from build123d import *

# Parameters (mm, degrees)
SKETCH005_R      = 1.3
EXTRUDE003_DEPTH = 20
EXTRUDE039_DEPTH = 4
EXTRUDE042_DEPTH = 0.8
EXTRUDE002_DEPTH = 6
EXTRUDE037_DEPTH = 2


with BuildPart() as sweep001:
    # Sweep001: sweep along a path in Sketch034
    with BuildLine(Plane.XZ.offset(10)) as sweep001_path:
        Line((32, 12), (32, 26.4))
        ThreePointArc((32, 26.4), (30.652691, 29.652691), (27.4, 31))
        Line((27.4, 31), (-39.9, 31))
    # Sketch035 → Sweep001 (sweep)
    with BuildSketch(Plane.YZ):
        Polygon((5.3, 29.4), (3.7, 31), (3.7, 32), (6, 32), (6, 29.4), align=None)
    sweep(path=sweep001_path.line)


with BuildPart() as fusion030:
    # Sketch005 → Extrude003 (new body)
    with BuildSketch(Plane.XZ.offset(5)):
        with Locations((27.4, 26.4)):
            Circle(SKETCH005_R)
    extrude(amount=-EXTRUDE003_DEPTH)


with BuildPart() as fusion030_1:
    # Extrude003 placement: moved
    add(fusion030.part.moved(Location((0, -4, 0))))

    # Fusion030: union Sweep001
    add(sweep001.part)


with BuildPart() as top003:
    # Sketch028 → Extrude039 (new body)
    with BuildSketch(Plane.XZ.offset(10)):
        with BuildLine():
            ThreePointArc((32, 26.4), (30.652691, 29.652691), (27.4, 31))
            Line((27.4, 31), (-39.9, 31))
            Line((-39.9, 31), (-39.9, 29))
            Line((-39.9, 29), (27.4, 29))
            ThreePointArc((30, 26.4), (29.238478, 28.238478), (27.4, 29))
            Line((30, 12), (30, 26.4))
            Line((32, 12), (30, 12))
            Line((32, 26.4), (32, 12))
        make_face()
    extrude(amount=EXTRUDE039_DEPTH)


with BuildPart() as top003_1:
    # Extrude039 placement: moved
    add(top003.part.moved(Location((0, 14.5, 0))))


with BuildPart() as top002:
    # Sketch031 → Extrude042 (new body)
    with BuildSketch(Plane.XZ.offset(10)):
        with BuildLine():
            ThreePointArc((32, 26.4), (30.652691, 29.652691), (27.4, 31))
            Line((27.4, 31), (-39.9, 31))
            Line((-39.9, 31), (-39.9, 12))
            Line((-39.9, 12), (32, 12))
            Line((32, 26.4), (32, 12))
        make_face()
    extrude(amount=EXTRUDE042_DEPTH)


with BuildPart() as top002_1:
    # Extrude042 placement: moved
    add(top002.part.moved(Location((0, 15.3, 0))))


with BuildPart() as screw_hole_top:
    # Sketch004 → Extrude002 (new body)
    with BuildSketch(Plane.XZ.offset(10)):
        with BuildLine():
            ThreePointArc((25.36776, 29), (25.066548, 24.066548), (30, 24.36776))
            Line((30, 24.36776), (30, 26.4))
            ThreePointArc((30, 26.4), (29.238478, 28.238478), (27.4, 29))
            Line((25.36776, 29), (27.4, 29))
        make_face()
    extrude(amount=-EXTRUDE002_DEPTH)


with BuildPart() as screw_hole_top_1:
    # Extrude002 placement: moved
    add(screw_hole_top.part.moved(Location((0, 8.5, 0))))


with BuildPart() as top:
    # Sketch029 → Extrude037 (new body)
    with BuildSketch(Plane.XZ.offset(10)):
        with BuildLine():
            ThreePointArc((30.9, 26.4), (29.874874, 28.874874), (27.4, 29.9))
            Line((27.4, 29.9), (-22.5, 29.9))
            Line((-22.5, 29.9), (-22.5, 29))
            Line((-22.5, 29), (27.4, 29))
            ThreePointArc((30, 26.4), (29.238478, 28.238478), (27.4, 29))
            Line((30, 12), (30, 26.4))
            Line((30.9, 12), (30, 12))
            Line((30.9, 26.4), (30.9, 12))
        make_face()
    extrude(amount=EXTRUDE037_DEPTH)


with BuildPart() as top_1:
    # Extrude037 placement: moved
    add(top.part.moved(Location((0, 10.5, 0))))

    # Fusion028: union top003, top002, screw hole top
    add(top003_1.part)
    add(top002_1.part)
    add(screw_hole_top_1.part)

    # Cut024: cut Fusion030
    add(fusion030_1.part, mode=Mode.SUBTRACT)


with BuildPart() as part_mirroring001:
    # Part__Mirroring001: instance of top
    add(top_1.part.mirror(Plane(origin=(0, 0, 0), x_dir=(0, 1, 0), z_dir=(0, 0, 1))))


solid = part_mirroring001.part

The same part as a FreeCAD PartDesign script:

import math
import FreeCAD as App
import Part
import Sketcher
from FreeCAD import Vector
Q = App.Units.Quantity

doc = App.newDocument("Part")
body = doc.addObject("PartDesign::Body", "Body")

# Sketch on YZ plane
sketch1 = body.newObject("Sketcher::SketchObject", "Sketch")
sketch1.AttachmentSupport = (doc.getObject("YZ_Plane"), [""])
sketch1.MapMode = "FlatFace"
sketch1.addGeometry([
    Part.LineSegment(Vector(3.7, 31, 0), Vector(5.3, 29.4, 0)),  # 0
    Part.LineSegment(Vector(5.3, 29.4, 0), Vector(6, 29.4, 0)),  # 1
    Part.LineSegment(Vector(6, 29.4, 0), Vector(6, 32, 0)),  # 2
    Part.LineSegment(Vector(6, 32, 0), Vector(3.7, 32, 0)),  # 3
    Part.LineSegment(Vector(3.7, 32, 0), Vector(3.7, 31, 0)),  # 4
], False)
sketch1.addConstraint([
    Sketcher.Constraint("Coincident", 0, 2, 1, 1),
    Sketcher.Constraint("Coincident", 1, 2, 2, 1),
    Sketcher.Constraint("Coincident", 2, 2, 3, 1),
    Sketcher.Constraint("Coincident", 3, 2, 4, 1),
    Sketcher.Constraint("Coincident", 4, 2, 0, 1),
    Sketcher.Constraint("Horizontal", 1),
    Sketcher.Constraint("Vertical", 2),
    Sketcher.Constraint("Horizontal", 3),
    Sketcher.Constraint("Vertical", 4),
    Sketcher.Constraint("DistanceY", 4, 2, 4, 1, 1.0),
    Sketcher.Constraint("Angle", 0, Q("-45 deg")),
    Sketcher.Constraint("DistanceX", 1, 1, 1, 2, 0.7),
    Sketcher.Constraint("DistanceX", 3, 2, 3, 1, 2.3),
    Sketcher.Constraint("DistanceX", -1, 1, 1, 2, 6.0),
    Sketcher.Constraint("DistanceY", -1, 1, 2, 2, 32.0),
])

# Sketch on XZ plane
sketch2 = body.newObject("Sketcher::SketchObject", "Sketch001")
sketch2.AttachmentSupport = (doc.getObject("XZ_Plane"), [""])
sketch2.MapMode = "FlatFace"
sketch2.AttachmentOffset = App.Placement(Vector(0, 0, 10), App.Rotation())
sketch2.addGeometry([
    Part.LineSegment(Vector(32, 12, 0), Vector(32, 26.4, 0)),
    Part.ArcOfCircle(Part.Circle(Vector(27.399999, 26.399999, 0), Vector(0, 0, 1), 4.600001), math.radians(0.000008), math.radians(89.999992)),
    Part.LineSegment(Vector(27.4, 31, 0), Vector(-39.9, 31, 0)),
], False)
sketch2.addConstraint([
    Sketcher.Constraint("Tangent", 0, 2, 1, 1),
    Sketcher.Constraint("Tangent", 1, 2, 2, 1),
    Sketcher.Constraint("Vertical", 0),
    Sketcher.Constraint("Horizontal", 2),
    Sketcher.Constraint("Radius", 1, 4.600001),
    Sketcher.Constraint("DistanceX", 2, 2, 2, 1, 67.3),
    Sketcher.Constraint("DistanceY", 0, 1, 0, 2, 14.4),
    Sketcher.Constraint("DistanceX", -1, 1, 0, 1, 32.0),
    Sketcher.Constraint("DistanceY", -1, 1, 0, 1, 12.0),
])
doc.recompute()

additivepipe = body.newObject("PartDesign::AdditivePipe", "AdditivePipe")
additivepipe.Profile = sketch1
additivepipe.Spine = (sketch2, ["Edge1", "Edge2", "Edge3"])
body2 = doc.addObject("PartDesign::Body", "Body001")

# Sketch on XZ plane
sketch3 = body2.newObject("Sketcher::SketchObject", "Sketch002")
sketch3.AttachmentSupport = (doc.getObject("XZ_Plane001"), [""])
sketch3.MapMode = "FlatFace"
sketch3.AttachmentOffset = App.Placement(Vector(0, 0, 5), App.Rotation())
sketch3.addGeometry(Part.Circle(Vector(27.4, 26.4, 0), Vector(0, 0, 1), 1.3), False)
sketch3.addConstraint([
    Sketcher.Constraint("Diameter", 0, 2.6),
    Sketcher.Constraint("DistanceX", -1, 1, 0, 3, 27.4),
    Sketcher.Constraint("DistanceY", -1, 1, 0, 3, 26.4),
])
pad1 = body2.newObject("PartDesign::Pad", "Pad")
pad1.Profile = sketch3
pad1.Length = 20
pad1.Reversed = True
body3 = doc.addObject("PartDesign::Body", "Body002")
body3.AllowCompound = True
doc.recompute()

body2.Placement = App.Placement(Vector(0, -4, 0), App.Rotation(Vector(0, 0, 1), 0))
boolean = body3.newObject("PartDesign::Boolean", "Boolean")
boolean.Type = "Fuse"
boolean.addObjects([body2])
doc.recompute()

boolean2 = body3.newObject("PartDesign::Boolean", "Boolean001")
boolean2.Type = "Fuse"
boolean2.addObjects([body])
body4 = doc.addObject("PartDesign::Body", "Body003")

# Sketch on XZ plane
sketch4 = body4.newObject("Sketcher::SketchObject", "Sketch003")
sketch4.AttachmentSupport = (doc.getObject("XZ_Plane003"), [""])
sketch4.MapMode = "FlatFace"
sketch4.AttachmentOffset = App.Placement(Vector(0, 0, 10), App.Rotation())
sketch4.addGeometry([
    Part.ArcOfCircle(Part.Circle(Vector(27.399999, 26.399999, 0), Vector(0, 0, 1), 4.600001), math.radians(0.000008), math.radians(89.999992)),  # 0
    Part.LineSegment(Vector(27.4, 31, 0), Vector(-39.9, 31, 0)),  # 1
    Part.LineSegment(Vector(-39.9, 31, 0), Vector(-39.9, 29, 0)),  # 2
    Part.LineSegment(Vector(-39.9, 29, 0), Vector(27.4, 29, 0)),  # 3
    Part.ArcOfCircle(Part.Circle(Vector(27.400001, 26.400001, 0), Vector(0, 0, 1), 2.599999), math.radians(-0.000028), math.radians(90.000028)),  # 4
    Part.LineSegment(Vector(30, 26.4, 0), Vector(30, 12, 0)),  # 5
    Part.LineSegment(Vector(30, 12, 0), Vector(32, 12, 0)),  # 6
    Part.LineSegment(Vector(32, 12, 0), Vector(32, 26.4, 0)),  # 7
], False)
sketch4.addConstraint([
    Sketcher.Constraint("Tangent", 0, 2, 1, 1),
    Sketcher.Constraint("Coincident", 1, 2, 2, 1),
    Sketcher.Constraint("Coincident", 2, 2, 3, 1),
    Sketcher.Constraint("Tangent", 3, 2, 4, 2),
    Sketcher.Constraint("Tangent", 4, 1, 5, 1),
    Sketcher.Constraint("Coincident", 5, 2, 6, 1),
    Sketcher.Constraint("Coincident", 6, 2, 7, 1),
    Sketcher.Constraint("Tangent", 7, 2, 0, 1),
    Sketcher.Constraint("Horizontal", 1),
    Sketcher.Constraint("Vertical", 2),
    Sketcher.Constraint("Horizontal", 3),
    Sketcher.Constraint("Vertical", 5),
    Sketcher.Constraint("Horizontal", 6),
    Sketcher.Constraint("Vertical", 7),
    Sketcher.Constraint("Coincident", 4, 3, 0, 3),
    Sketcher.Constraint("Radius", 0, 4.600001),
    Sketcher.Constraint("Radius", 4, 2.599999),
    Sketcher.Constraint("DistanceX", 1, 2, 1, 1, 67.3),
    Sketcher.Constraint("DistanceY", 5, 2, 5, 1, 14.4),
    Sketcher.Constraint("DistanceY", -1, 1, 0, 2, 31.0),
    Sketcher.Constraint("DistanceX", -1, 1, 4, 1, 30.0),
])
pad2 = body4.newObject("PartDesign::Pad", "Pad001")
pad2.Profile = sketch4
pad2.Length = 4
body5 = doc.addObject("PartDesign::Body", "Body004")
doc.recompute()

body4.Placement = App.Placement(Vector(0, 14.5, 0), App.Rotation(Vector(0, 0, 1), 0))
boolean3 = body5.newObject("PartDesign::Boolean", "Boolean002")
boolean3.Type = "Fuse"
boolean3.addObjects([body4])
body6 = doc.addObject("PartDesign::Body", "Body005")

# Sketch on XZ plane
sketch5 = body6.newObject("Sketcher::SketchObject", "Sketch004")
sketch5.AttachmentSupport = (doc.getObject("XZ_Plane005"), [""])
sketch5.MapMode = "FlatFace"
sketch5.AttachmentOffset = App.Placement(Vector(0, 0, 10), App.Rotation())
sketch5.addGeometry([
    Part.ArcOfCircle(Part.Circle(Vector(27.399999, 26.399999, 0), Vector(0, 0, 1), 4.600001), math.radians(0.000008), math.radians(89.999992)),  # 0
    Part.LineSegment(Vector(27.4, 31, 0), Vector(-39.9, 31, 0)),  # 1
    Part.LineSegment(Vector(-39.9, 31, 0), Vector(-39.9, 12, 0)),  # 2
    Part.LineSegment(Vector(-39.9, 12, 0), Vector(32, 12, 0)),  # 3
    Part.LineSegment(Vector(32, 12, 0), Vector(32, 26.4, 0)),  # 4
], False)
sketch5.addConstraint([
    Sketcher.Constraint("Tangent", 0, 2, 1, 1),
    Sketcher.Constraint("Coincident", 1, 2, 2, 1),
    Sketcher.Constraint("Coincident", 2, 2, 3, 1),
    Sketcher.Constraint("Coincident", 3, 2, 4, 1),
    Sketcher.Constraint("Tangent", 4, 2, 0, 1),
    Sketcher.Constraint("Horizontal", 1),
    Sketcher.Constraint("Vertical", 2),
    Sketcher.Constraint("Horizontal", 3),
    Sketcher.Constraint("Vertical", 4),
    Sketcher.Constraint("Radius", 0, 4.600001),
    Sketcher.Constraint("DistanceY", 2, 2, 2, 1, 19.0),
    Sketcher.Constraint("DistanceX", 1, 2, 1, 1, 67.3),
    Sketcher.Constraint("DistanceY", -1, 1, 0, 2, 31.0),
    Sketcher.Constraint("DistanceX", -1, 1, 3, 2, 32.0),
])
pad3 = body6.newObject("PartDesign::Pad", "Pad002")
pad3.Profile = sketch5
pad3.Length = 0.8
body7 = doc.addObject("PartDesign::Body", "Body006")
doc.recompute()

body6.Placement = App.Placement(Vector(0, 15.3, 0), App.Rotation(Vector(0, 0, 1), 0))
boolean4 = body7.newObject("PartDesign::Boolean", "Boolean003")
boolean4.Type = "Fuse"
boolean4.addObjects([body6])
body8 = doc.addObject("PartDesign::Body", "Body007")

# Sketch on XZ plane
sketch6 = body8.newObject("Sketcher::SketchObject", "Sketch005")
sketch6.AttachmentSupport = (doc.getObject("XZ_Plane007"), [""])
sketch6.MapMode = "FlatFace"
sketch6.AttachmentOffset = App.Placement(Vector(0, 0, 10), App.Rotation())
sketch6.addGeometry([
    Part.ArcOfCircle(Part.Circle(Vector(27.4, 26.4, 0), Vector(0, 0, 1), 3.3), math.radians(128.012284), math.radians(321.987716)),
    Part.LineSegment(Vector(30, 24.36776, 0), Vector(30, 26.4, 0)),
    Part.ArcOfCircle(Part.Circle(Vector(27.400001, 26.400001, 0), Vector(0, 0, 1), 2.599999), math.radians(-0.000028), math.radians(90.000028)),
    Part.LineSegment(Vector(27.4, 29, 0), Vector(25.36776, 29, 0)),
], False)
sketch6.addConstraint([
    Sketcher.Constraint("Coincident", 0, 2, 1, 1),
    Sketcher.Constraint("Tangent", 1, 2, 2, 1),
    Sketcher.Constraint("Tangent", 2, 2, 3, 1),
    Sketcher.Constraint("Coincident", 3, 2, 0, 1),
    Sketcher.Constraint("Vertical", 1),
    Sketcher.Constraint("Horizontal", 3),
    Sketcher.Constraint("Coincident", 2, 3, 0, 3),
    Sketcher.Constraint("Radius", 0, 3.3),
    Sketcher.Constraint("Radius", 2, 2.599999),
    Sketcher.Constraint("DistanceX", -1, 1, 0, 2, 30.0),
    Sketcher.Constraint("DistanceY", -1, 1, 2, 2, 29.0),
])
pad4 = body8.newObject("PartDesign::Pad", "Pad003")
pad4.Profile = sketch6
pad4.Length = 6
pad4.Reversed = True
body9 = doc.addObject("PartDesign::Body", "Body008")
doc.recompute()

body8.Placement = App.Placement(Vector(0, 8.5, 0), App.Rotation(Vector(0, 0, 1), 0))
boolean5 = body9.newObject("PartDesign::Boolean", "Boolean004")
boolean5.Type = "Fuse"
boolean5.addObjects([body8])
body10 = doc.addObject("PartDesign::Body", "Body009")

# Sketch on XZ plane
sketch7 = body10.newObject("Sketcher::SketchObject", "Sketch006")
sketch7.AttachmentSupport = (doc.getObject("XZ_Plane009"), [""])
sketch7.MapMode = "FlatFace"
sketch7.AttachmentOffset = App.Placement(Vector(0, 0, 10), App.Rotation())
sketch7.addGeometry([
    Part.ArcOfCircle(Part.Circle(Vector(27.400001, 26.400001, 0), Vector(0, 0, 1), 3.499999), math.radians(-0.000015), math.radians(90.000015)),  # 0
    Part.LineSegment(Vector(27.4, 29.9, 0), Vector(-22.5, 29.9, 0)),  # 1
    Part.LineSegment(Vector(-22.5, 29.9, 0), Vector(-22.5, 29, 0)),  # 2
    Part.LineSegment(Vector(-22.5, 29, 0), Vector(27.4, 29, 0)),  # 3
    Part.ArcOfCircle(Part.Circle(Vector(27.400001, 26.400001, 0), Vector(0, 0, 1), 2.599999), math.radians(-0.000028), math.radians(90.000028)),  # 4
    Part.LineSegment(Vector(30, 26.4, 0), Vector(30, 12, 0)),  # 5
    Part.LineSegment(Vector(30, 12, 0), Vector(30.9, 12, 0)),  # 6
    Part.LineSegment(Vector(30.9, 12, 0), Vector(30.9, 26.4, 0)),  # 7
], False)
sketch7.addConstraint([
    Sketcher.Constraint("Tangent", 0, 2, 1, 1),
    Sketcher.Constraint("Coincident", 1, 2, 2, 1),
    Sketcher.Constraint("Coincident", 2, 2, 3, 1),
    Sketcher.Constraint("Tangent", 3, 2, 4, 2),
    Sketcher.Constraint("Tangent", 4, 1, 5, 1),
    Sketcher.Constraint("Coincident", 5, 2, 6, 1),
    Sketcher.Constraint("Coincident", 6, 2, 7, 1),
    Sketcher.Constraint("Tangent", 7, 2, 0, 1),
    Sketcher.Constraint("Horizontal", 1),
    Sketcher.Constraint("Vertical", 2),
    Sketcher.Constraint("Horizontal", 3),
    Sketcher.Constraint("Vertical", 5),
    Sketcher.Constraint("Horizontal", 6),
    Sketcher.Constraint("Vertical", 7),
    Sketcher.Constraint("Coincident", 4, 3, 0, 3),
    Sketcher.Constraint("Radius", 0, 3.499999),
    Sketcher.Constraint("Radius", 4, 2.599999),
    Sketcher.Constraint("DistanceX", 1, 2, 1, 1, 49.9),
    Sketcher.Constraint("DistanceY", 5, 2, 5, 1, 14.4),
    Sketcher.Constraint("DistanceY", -1, 1, 2, 2, 29.0),
    Sketcher.Constraint("DistanceX", -1, 1, 4, 1, 30.0),
])
pad5 = body10.newObject("PartDesign::Pad", "Pad004")
pad5.Profile = sketch7
pad5.Length = 2
body11 = doc.addObject("PartDesign::Body", "Body010")
doc.recompute()

body10.Placement = App.Placement(Vector(0, 10.5, 0), App.Rotation(Vector(0, 0, 1), 0))
boolean6 = body11.newObject("PartDesign::Boolean", "Boolean005")
boolean6.Type = "Fuse"
boolean6.addObjects([body10])
doc.recompute()

boolean7 = body11.newObject("PartDesign::Boolean", "Boolean006")
boolean7.Type = "Fuse"
boolean7.addObjects([body5])
doc.recompute()

boolean8 = body11.newObject("PartDesign::Boolean", "Boolean007")
boolean8.Type = "Fuse"
boolean8.addObjects([body7])
doc.recompute()

boolean9 = body11.newObject("PartDesign::Boolean", "Boolean008")
boolean9.Type = "Fuse"
boolean9.addObjects([body9])
doc.recompute()

boolean10 = body11.newObject("PartDesign::Boolean", "Boolean009")
boolean10.Type = "Cut"
boolean10.addObjects([body3])
body12 = doc.addObject("PartDesign::Body", "Body011")
doc.recompute()

mirroring = doc.addObject("Part::Mirroring", "Mirroring")
mirroring.Source = body11
mirroring.Base = Vector(0, 0, 0)
mirroring.Normal = Vector(0, 0, 1)
body12.BaseFeature = mirroring
doc.recompute()
body11.Visibility = False
mirroring.Visibility = False

doc.recompute()
